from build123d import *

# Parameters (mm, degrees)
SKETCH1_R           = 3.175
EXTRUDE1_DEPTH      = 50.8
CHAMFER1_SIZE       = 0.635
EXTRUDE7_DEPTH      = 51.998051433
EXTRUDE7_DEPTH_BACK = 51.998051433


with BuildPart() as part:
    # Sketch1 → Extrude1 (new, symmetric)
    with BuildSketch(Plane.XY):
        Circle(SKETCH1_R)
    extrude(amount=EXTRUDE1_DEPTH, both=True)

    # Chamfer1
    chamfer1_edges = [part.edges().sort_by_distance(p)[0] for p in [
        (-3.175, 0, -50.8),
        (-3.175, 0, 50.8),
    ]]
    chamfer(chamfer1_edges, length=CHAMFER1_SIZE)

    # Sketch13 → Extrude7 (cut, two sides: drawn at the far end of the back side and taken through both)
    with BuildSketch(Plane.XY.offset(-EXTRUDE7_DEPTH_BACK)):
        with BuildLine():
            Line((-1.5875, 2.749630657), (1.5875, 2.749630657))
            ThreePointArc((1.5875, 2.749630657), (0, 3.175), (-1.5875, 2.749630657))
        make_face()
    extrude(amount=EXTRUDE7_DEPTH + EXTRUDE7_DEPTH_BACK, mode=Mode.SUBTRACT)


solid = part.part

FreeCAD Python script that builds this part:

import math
import FreeCAD as App
import Part
import Sketcher
from FreeCAD import Vector
Q = App.Units.Quantity


def edges_at(feature, points):
    """Names of the edges that pass closest to the given points."""
    edges = feature.Shape.Edges
    near = lambda p: min(range(len(edges)), key=lambda i: edges[i].distToShape(Part.Vertex(*p))[0])
    return sorted({f"Edge{near(p) + 1}" for p in points})

doc = App.newDocument("Part")
params = doc.addObject("Spreadsheet::Sheet", "Params")
for row, (alias, value) in enumerate([
    ("sketch1_diameter", "0.25 in"),
    ("pad1_length", "4 in"),
    ("chamfer_size", "0.025 in"),
    ("sketch2_radius", "0.125 in"),
    ("sketch2_width", "0.125 in"),
], start=1):
    params.set(f"A{row}", alias)
    params.set(f"B{row}", "=" + value)
    params.setAlias(f"B{row}", alias)

body = doc.addObject("PartDesign::Body", "Body")

sketch1 = body.newObject("Sketcher::SketchObject", "Sketch")
sketch1.AttachmentSupport = (doc.getObject("XY_Plane"), [""])
sketch1.MapMode = "FlatFace"
sketch1.addGeometry(Part.Circle(Vector(0, 0, 0), Vector(0, 0, 1), 3.2), False)
sketch1.addConstraint([
    Sketcher.Constraint("Coincident", 0, 3, -1, 1),
    Sketcher.Constraint("Diameter", 0, Q("0.25 in")),
])
sketch1.setExpression("Constraints[1]", "Params.sketch1_diameter")
pad1 = body.newObject("PartDesign::Pad", "Pad")
pad1.Profile = sketch1
pad1.setExpression("Length", "Params.pad1_length")
pad1.Midplane = True
doc.recompute()

chamfer = body.newObject("PartDesign::Chamfer", "Chamfer")
chamfer.Base = (pad1, edges_at(pad1, [(-3.175, 0, -50.8), (-3.175, 0, 50.8)]))
chamfer.setExpression("Size", "Params.chamfer_size")

sketch2 = body.newObject("Sketcher::SketchObject", "Sketch001")
sketch2.AttachmentSupport = (doc.getObject("XY_Plane"), [""])
sketch2.MapMode = "FlatFace"
sketch2.addGeometry([
    Part.LineSegment(Vector(-1.6, 2.7, 0), Vector(1.6, 2.7, 0)),
    Part.ArcOfCircle(Part.Circle(Vector(0, 0, 0), Vector(0, 0, 1), 3.2), math.radians(60), math.radians(120)),
], False)
sketch2.addConstraint([
    Sketcher.Constraint("Coincident", 0, 1, 1, 2),
    Sketcher.Constraint("Coincident", 1, 1, 0, 2),
    Sketcher.Constraint("Horizontal", 0),
    Sketcher.Constraint("Coincident", 1, 3, -1, 1),
    Sketcher.Constraint("Radius", 1, Q("0.125 in")),
    Sketcher.Constraint("DistanceX", 0, 1, 0, 2, Q("0.125 in")),
])
sketch2.setExpression("Constraints[4]", "Params.sketch2_radius")
sketch2.setExpression("Constraints[5]", "Params.sketch2_width")
pocket1 = body.newObject("PartDesign::Pocket", "Pocket")
pocket1.Profile = sketch2
pocket1.Type = "ThroughAll"
pocket1.Midplane = True

doc.recompute()
